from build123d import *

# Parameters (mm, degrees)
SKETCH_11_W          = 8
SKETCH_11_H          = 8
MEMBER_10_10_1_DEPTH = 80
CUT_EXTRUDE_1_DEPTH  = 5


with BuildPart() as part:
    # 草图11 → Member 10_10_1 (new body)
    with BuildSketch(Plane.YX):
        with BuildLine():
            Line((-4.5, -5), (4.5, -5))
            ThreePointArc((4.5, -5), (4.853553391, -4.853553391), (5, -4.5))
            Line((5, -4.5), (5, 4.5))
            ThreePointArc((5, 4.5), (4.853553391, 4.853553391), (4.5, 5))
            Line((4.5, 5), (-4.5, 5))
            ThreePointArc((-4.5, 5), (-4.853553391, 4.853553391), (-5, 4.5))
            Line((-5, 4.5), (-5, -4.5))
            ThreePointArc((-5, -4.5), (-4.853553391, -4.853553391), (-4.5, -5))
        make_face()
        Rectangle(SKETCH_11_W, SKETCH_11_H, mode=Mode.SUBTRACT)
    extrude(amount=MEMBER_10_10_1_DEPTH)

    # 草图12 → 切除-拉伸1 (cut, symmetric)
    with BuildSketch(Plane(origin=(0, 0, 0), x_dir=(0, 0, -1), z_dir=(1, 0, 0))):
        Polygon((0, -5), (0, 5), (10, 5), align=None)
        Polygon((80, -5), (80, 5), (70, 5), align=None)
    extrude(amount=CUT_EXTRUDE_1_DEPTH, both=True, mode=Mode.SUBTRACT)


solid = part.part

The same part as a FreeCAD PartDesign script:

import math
import FreeCAD as App
import Part
import Sketcher

doc = App.newDocument("Part")
body = doc.addObject("PartDesign::Body", "Body")

sketch1 = body.newObject("Sketcher::SketchObject", "Sketch")
sketch1.AttachmentSupport = (doc.getObject("XY_Plane"), [""])
sketch1.MapMode = "FlatFace"
sketch1.addGeometry([
    Part.LineSegment(App.Vector(-5, -4.5, 0), App.Vector(-5, 4.5, 0)),
    Part.ArcOfCircle(Part.Circle(App.Vector(-4.5, 4.5, 0), App.Vector(0, 0, 1), 0.5), math.radians(90), math.radians(180)),
    Part.LineSegment(App.Vector(-4.5, 5, 0), App.Vector(4.5, 5, 0)),
    Part.ArcOfCircle(Part.Circle(App.Vector(4.5, 4.5, 0), App.Vector(0, 0, 1), 0.5), math.radians(0), math.radians(90)),
    Part.LineSegment(App.Vector(5, 4.5, 0), App.Vector(5, -4.5, 0)),
    Part.ArcOfCircle(Part.Circle(App.Vector(4.5, -4.5, 0), App.Vector(0, 0, 1), 0.5), math.radians(-90), math.radians(0)),
    Part.LineSegment(App.Vector(4.5, -5, 0), App.Vector(-4.5, -5, 0)),
    Part.ArcOfCircle(Part.Circle(App.Vector(-4.5, -4.5, 0), App.Vector(0, 0, 1), 0.5), math.radians(180), math.radians(270)),
    Part.LineSegment(App.Vector(-4, 4, 0), App.Vector(-4, -4, 0)),
    Part.LineSegment(App.Vector(-4, -4, 0), App.Vector(4, -4, 0)),
    Part.LineSegment(App.Vector(4, -4, 0), App.Vector(4, 4, 0)),
    Part.LineSegment(App.Vector(4, 4, 0), App.Vector(-4, 4, 0)),
], False)
sketch1.addConstraint([
    Sketcher.Constraint("Tangent", 0, 2, 1, 2),
    Sketcher.Constraint("Tangent", 1, 1, 2, 1),
    Sketcher.Constraint("Tangent", 2, 2, 3, 2),
    Sketcher.Constraint("Tangent", 3, 1, 4, 1),
    Sketcher.Constraint("Tangent", 4, 2, 5, 2),
    Sketcher.Constraint("Tangent", 5, 1, 6, 1),
    Sketcher.Constraint("Tangent", 6, 2, 7, 2),
    Sketcher.Constraint("Tangent", 7, 1, 0, 1),
    Sketcher.Constraint("Coincident", 8, 2, 9, 1),
    Sketcher.Constraint("Coincident", 9, 2, 10, 1),
    Sketcher.Constraint("Coincident", 10, 2, 11, 1),
    Sketcher.Constraint("Coincident", 11, 2, 8, 1),
    Sketcher.Constraint("Vertical", 0),
    Sketcher.Constraint("Horizontal", 2),
    Sketcher.Constraint("Vertical", 4),
    Sketcher.Constraint("Horizontal", 6),
    Sketcher.Constraint("Vertical", 8),
    Sketcher.Constraint("Horizontal", 9),
    Sketcher.Constraint("Vertical", 10),
    Sketcher.Constraint("Horizontal", 11),
    Sketcher.Constraint("Equal", 1, 3),
    Sketcher.Constraint("Equal", 3, 5),
    Sketcher.Constraint("Equal", 5, 7),
    Sketcher.Constraint("Symmetric", 1, 3, 5, 3, -1, 1),
    Sketcher.Constraint("Symmetric", 8, 2, 10, 2, -1, 1),
    Sketcher.Constraint("Equal", 6, 0),
    Sketcher.Constraint("Equal", 11, 8),
    Sketcher.Constraint("Radius", 1, 0.5),
    Sketcher.Constraint("DistanceX", 2, 1, 2, 2, 9.0),
    Sketcher.Constraint("DistanceX", 9, 1, 9, 2, 8.0),
])
pad1 = body.newObject("PartDesign::Pad", "Pad")
pad1.Profile = sketch1
pad1.Length = 80
pad1.Reversed = True

sketch2 = body.newObject("Sketcher::SketchObject", "Sketch001")
sketch2.AttachmentSupport = (doc.getObject("YZ_Plane"), [""])
sketch2.MapMode = "FlatFace"
sketch2.addGeometry([
    Part.LineSegment(App.Vector(5, 0, 0), App.Vector(-5, 0, 0)),
    Part.LineSegment(App.Vector(-5, 0, 0), App.Vector(5, -10, 0)),
    Part.LineSegment(App.Vector(5, -10, 0), App.Vector(5, 0, 0)),
    Part.LineSegment(App.Vector(-5, -80, 0), App.Vector(5, -80, 0)),
    Part.LineSegment(App.Vector(5, -80, 0), App.Vector(5, -70, 0)),
    Part.LineSegment(App.Vector(5, -70, 0), App.Vector(-5, -80, 0)),
], False)
sketch2.addConstraint([
    Sketcher.Constraint("Coincident", 0, 2, 1, 1),
    Sketcher.Constraint("Coincident", 1, 2, 2, 1),
    Sketcher.Constraint("Coincident", 2, 2, 0, 1),
    Sketcher.Constraint("Coincident", 3, 2, 4, 1),
    Sketcher.Constraint("Coincident", 4, 2, 5, 1),
    Sketcher.Constraint("Coincident", 5, 2, 3, 1),
    Sketcher.Constraint("Horizontal", 0),
    Sketcher.Constraint("Vertical", 2),
    Sketcher.Constraint("Horizontal", 3),
    Sketcher.Constraint("Vertical", 4),
    Sketcher.Constraint("Symmetric", 0, 2, 2, 2, -1, 1),
    Sketcher.Constraint("Perpendicular", 1, 5),
    Sketcher.Constraint("Vertical", 2, 2, 3, 2),
    Sketcher.Constraint("Vertical", 0, 2, 5, 2),
    Sketcher.Constraint("Equal", 3, 2),
    Sketcher.Constraint("DistanceX", 0, 2, 0, 1, 10.0),
    Sketcher.Constraint("DistanceY", 3, 2, -1, 1, 80.0),
])
pocket1 = body.newObject("PartDesign::Pocket", "Pocket")
pocket1.Profile = sketch2
pocket1.Length = 10
pocket1.Midplane = True

doc.recompute()
